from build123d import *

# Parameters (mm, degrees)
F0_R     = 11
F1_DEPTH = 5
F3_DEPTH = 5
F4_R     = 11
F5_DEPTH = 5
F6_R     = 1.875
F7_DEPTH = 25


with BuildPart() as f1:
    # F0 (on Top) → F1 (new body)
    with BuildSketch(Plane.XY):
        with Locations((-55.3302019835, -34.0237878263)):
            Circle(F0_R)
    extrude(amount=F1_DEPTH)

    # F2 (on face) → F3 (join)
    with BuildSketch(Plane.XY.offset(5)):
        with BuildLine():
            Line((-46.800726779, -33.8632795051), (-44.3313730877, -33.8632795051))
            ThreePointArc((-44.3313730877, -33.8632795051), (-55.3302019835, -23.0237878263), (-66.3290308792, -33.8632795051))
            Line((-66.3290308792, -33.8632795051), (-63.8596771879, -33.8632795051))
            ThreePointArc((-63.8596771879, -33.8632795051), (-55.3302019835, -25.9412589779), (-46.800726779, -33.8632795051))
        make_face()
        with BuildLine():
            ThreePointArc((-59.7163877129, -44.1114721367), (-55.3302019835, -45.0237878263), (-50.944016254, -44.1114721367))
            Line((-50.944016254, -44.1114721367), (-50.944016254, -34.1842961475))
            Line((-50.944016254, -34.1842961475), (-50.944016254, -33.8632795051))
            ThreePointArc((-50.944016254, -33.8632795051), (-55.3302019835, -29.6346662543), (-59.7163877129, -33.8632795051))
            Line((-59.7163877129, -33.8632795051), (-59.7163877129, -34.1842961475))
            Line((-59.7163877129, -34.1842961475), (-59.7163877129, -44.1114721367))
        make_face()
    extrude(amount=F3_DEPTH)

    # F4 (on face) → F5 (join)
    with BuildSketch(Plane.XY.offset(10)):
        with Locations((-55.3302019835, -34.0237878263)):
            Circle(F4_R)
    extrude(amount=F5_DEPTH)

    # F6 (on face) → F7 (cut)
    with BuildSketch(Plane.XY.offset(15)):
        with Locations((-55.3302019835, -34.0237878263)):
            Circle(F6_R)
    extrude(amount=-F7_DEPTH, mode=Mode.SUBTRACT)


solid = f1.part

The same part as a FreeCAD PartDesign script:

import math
import FreeCAD as App
import Part
import Sketcher

V = App.Vector
Q = App.Units.Quantity

doc = App.newDocument("Part")
body = doc.addObject("PartDesign::Body", "Body")

# Sketch on XY plane
sketch1 = body.newObject("Sketcher::SketchObject", "Sketch")
sketch1.AttachmentSupport = (doc.getObject("XY_Plane"), [""])
sketch1.MapMode = "FlatFace"
sketch1.addGeometry(Part.Circle(V(-55.330202, -34.023788, 0), V(0, 0, 1), 11), False)
sketch1.addConstraint(Sketcher.Constraint("Diameter", 0, Q("22 mm")))
sketch1.addConstraint(Sketcher.Constraint("DistanceX", 0, 3, -1, 1, Q("55.330202 mm")))
sketch1.addConstraint(Sketcher.Constraint("DistanceY", 0, 3, -1, 1, Q("34.023788 mm")))
pad1 = body.newObject("PartDesign::Pad", "Pad")
pad1.Profile = sketch1
pad1.Length = 5

# Sketch on XY plane
sketch2 = body.newObject("Sketcher::SketchObject", "Sketch001")
sketch2.AttachmentSupport = (doc.getObject("XY_Plane"), [""])
sketch2.MapMode = "FlatFace"
sketch2.AttachmentOffset = App.Placement(V(0, 0, 5), App.Rotation())
sketch2.addGeometry(Part.LineSegment(V(-46.800727, -33.86328, 0), V(-44.331373, -33.86328, 0)), False)
sketch2.addGeometry(Part.ArcOfCircle(Part.Circle(V(-55.330202, -34.023788, 0), V(0, 0, 1), 11), math.radians(0.836071), math.radians(179.163929)), False)
sketch2.addGeometry(Part.LineSegment(V(-66.329031, -33.86328, 0), V(-63.859677, -33.86328, 0)), False)
sketch2.addGeometry(Part.ArcOfCircle(Part.Circle(V(-55.330202, -34.494024, 0), V(0, 0, 1), 8.552765), math.radians(4.229255), math.radians(175.770745)), False)
sketch2.addGeometry(Part.ArcOfCircle(Part.Circle(V(-55.330202, -34.023788, 0), V(0, 0, 1), 11), math.radians(-113.499693), math.radians(-66.500307)), False)
sketch2.addGeometry(Part.LineSegment(V(-50.944016, -44.111472, 0), V(-50.944016, -33.86328, 0)), False)
sketch2.addGeometry(Part.ArcOfCircle(Part.Circle(V(-55.330202, -34.023788, 0), V(0, 0, 1), 4.389122), math.radians(2.09575), math.radians(177.90425)), False)
sketch2.addGeometry(Part.LineSegment(V(-59.716388, -33.86328, 0), V(-59.716388, -44.111472, 0)), False)
sketch2.addConstraint(Sketcher.Constraint("Coincident", 0, 2, 1, 1))
sketch2.addConstraint(Sketcher.Constraint("Coincident", 1, 2, 2, 1))
sketch2.addConstraint(Sketcher.Constraint("Coincident", 2, 2, 3, 2))
sketch2.addConstraint(Sketcher.Constraint("Coincident", 3, 1, 0, 1))
sketch2.addConstraint(Sketcher.Constraint("Coincident", 4, 2, 5, 1))
sketch2.addConstraint(Sketcher.Constraint("Coincident", 5, 2, 6, 1))
sketch2.addConstraint(Sketcher.Constraint("Coincident", 6, 2, 7, 1))
sketch2.addConstraint(Sketcher.Constraint("Coincident", 7, 2, 4, 1))
sketch2.addConstraint(Sketcher.Constraint("Horizontal", 0))
sketch2.addConstraint(Sketcher.Constraint("Horizontal", 2))
sketch2.addConstraint(Sketcher.Constraint("Vertical", 5))
sketch2.addConstraint(Sketcher.Constraint("Vertical", 7))
sketch2.addConstraint(Sketcher.Constraint("Coincident", 4, 3, 1, 3))
sketch2.addConstraint(Sketcher.Constraint("Coincident", 6, 3, 1, 3))
sketch2.addConstraint(Sketcher.Constraint("Equal", 1, 4))
sketch2.addConstraint(Sketcher.Constraint("Horizontal", 0, 2, 1, 2))
sketch2.addConstraint(Sketcher.Constraint("Horizontal", 3, 1, 5, 2))
sketch2.addConstraint(Sketcher.Constraint("Horizontal", 5, 2, 6, 2))
sketch2.addConstraint(Sketcher.Constraint("Vertical", 1, 3, 3, 3))
sketch2.addConstraint(Sketcher.Constraint("Radius", 1, Q("11 mm")))
sketch2.addConstraint(Sketcher.Constraint("Radius", 6, Q("4.389122 mm")))
sketch2.addConstraint(Sketcher.Constraint("Radius", 3, Q("8.552765 mm")))
sketch2.addConstraint(Sketcher.Constraint("DistanceX", 1, 3, -1, 1, Q("55.330202 mm")))
sketch2.addConstraint(Sketcher.Constraint("DistanceX", 0, 1, 0, 2, Q("2.469354 mm")))
sketch2.addConstraint(Sketcher.Constraint("DistanceY", 5, 1, 5, 2, Q("10.248193 mm")))
sketch2.addConstraint(Sketcher.Constraint("DistanceY", 0, 2, -1, 1, Q("33.86328 mm")))
pad2 = body.newObject("PartDesign::Pad", "Pad001")
pad2.Profile = sketch2
pad2.Length = 5

# Sketch on XY plane
sketch3 = body.newObject("Sketcher::SketchObject", "Sketch002")
sketch3.AttachmentSupport = (doc.getObject("XY_Plane"), [""])
sketch3.MapMode = "FlatFace"
sketch3.AttachmentOffset = App.Placement(V(0, 0, 10), App.Rotation())
sketch3.addGeometry(Part.Circle(V(-55.330202, -34.023788, 0), V(0, 0, 1), 11), False)
sketch3.addConstraint(Sketcher.Constraint("Diameter", 0, Q("22 mm")))
sketch3.addConstraint(Sketcher.Constraint("DistanceX", 0, 3, -1, 1, Q("55.330202 mm")))
sketch3.addConstraint(Sketcher.Constraint("DistanceY", 0, 3, -1, 1, Q("34.023788 mm")))
pad3 = body.newObject("PartDesign::Pad", "Pad002")
pad3.Profile = sketch3
pad3.Length = 5

# Sketch on XY plane
sketch4 = body.newObject("Sketcher::SketchObject", "Sketch003")
sketch4.AttachmentSupport = (doc.getObject("XY_Plane"), [""])
sketch4.MapMode = "FlatFace"
sketch4.AttachmentOffset = App.Placement(V(0, 0, 15), App.Rotation())
sketch4.addGeometry(Part.Circle(V(-55.330202, -34.023788, 0), V(0, 0, 1), 1.875), False)
sketch4.addConstraint(Sketcher.Constraint("Diameter", 0, Q("3.75 mm")))
sketch4.addConstraint(Sketcher.Constraint("DistanceX", 0, 3, -1, 1, Q("55.330202 mm")))
sketch4.addConstraint(Sketcher.Constraint("DistanceY", 0, 3, -1, 1, Q("34.023788 mm")))
pocket1 = body.newObject("PartDesign::Pocket", "Pocket")
pocket1.Profile = sketch4
pocket1.Length = 25

doc.recompute()
